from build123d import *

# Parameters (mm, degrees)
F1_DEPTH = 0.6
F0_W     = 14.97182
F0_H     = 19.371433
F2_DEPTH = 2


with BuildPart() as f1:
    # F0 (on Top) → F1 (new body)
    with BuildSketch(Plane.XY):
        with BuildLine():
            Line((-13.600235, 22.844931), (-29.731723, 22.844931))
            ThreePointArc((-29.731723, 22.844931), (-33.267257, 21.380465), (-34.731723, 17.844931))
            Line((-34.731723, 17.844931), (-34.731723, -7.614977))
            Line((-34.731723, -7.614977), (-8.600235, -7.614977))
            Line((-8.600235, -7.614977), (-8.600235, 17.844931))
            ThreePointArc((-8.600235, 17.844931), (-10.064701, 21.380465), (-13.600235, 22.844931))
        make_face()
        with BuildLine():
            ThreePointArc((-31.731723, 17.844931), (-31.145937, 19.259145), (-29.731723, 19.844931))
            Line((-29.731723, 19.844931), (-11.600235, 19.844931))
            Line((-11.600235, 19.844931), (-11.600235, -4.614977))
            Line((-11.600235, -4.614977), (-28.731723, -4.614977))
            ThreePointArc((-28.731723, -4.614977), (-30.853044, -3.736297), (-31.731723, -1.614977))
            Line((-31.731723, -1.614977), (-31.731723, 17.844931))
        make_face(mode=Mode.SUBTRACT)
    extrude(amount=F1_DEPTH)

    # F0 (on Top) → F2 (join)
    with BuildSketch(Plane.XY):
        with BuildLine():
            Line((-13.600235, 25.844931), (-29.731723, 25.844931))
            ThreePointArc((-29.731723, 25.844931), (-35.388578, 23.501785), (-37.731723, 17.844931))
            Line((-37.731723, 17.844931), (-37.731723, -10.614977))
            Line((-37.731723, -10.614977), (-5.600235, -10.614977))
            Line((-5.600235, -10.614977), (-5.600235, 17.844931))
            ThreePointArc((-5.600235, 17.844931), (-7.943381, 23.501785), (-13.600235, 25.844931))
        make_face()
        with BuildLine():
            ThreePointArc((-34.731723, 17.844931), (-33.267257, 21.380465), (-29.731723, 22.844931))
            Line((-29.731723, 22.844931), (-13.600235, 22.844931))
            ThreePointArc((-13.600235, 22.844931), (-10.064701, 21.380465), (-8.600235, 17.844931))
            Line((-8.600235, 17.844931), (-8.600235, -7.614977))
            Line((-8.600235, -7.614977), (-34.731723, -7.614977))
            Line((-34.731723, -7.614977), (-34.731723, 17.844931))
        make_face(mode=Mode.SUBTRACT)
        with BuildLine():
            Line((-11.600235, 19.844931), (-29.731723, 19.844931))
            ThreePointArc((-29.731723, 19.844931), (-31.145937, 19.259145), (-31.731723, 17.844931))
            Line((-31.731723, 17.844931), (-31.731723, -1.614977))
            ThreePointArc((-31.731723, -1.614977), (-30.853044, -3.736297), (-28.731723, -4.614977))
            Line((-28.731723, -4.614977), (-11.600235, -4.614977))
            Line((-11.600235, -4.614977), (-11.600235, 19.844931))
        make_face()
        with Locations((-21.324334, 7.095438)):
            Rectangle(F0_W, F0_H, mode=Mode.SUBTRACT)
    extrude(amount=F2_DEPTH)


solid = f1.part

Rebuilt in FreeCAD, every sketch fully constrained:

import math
import FreeCAD as App
import Part
import Sketcher

V = App.Vector
Q = App.Units.Quantity


def add_polygon(sketch, points):
    """Adds a closed chain of lines whose ends are joined by coincident constraints."""
    first, n = sketch.GeometryCount, len(points)
    for a, b in zip(points, points[1:] + points[:1]):
        sketch.addGeometry(Part.LineSegment(App.Vector(*a, 0), App.Vector(*b, 0)), False)
    for i in range(n):
        sketch.addConstraint(Sketcher.Constraint("Coincident", first + i, 2, first + (i + 1) % n, 1))

doc = App.newDocument("Part")
body = doc.addObject("PartDesign::Body", "Body")

# Sketch on XY plane
sketch1 = body.newObject("Sketcher::SketchObject", "Sketch")
sketch1.AttachmentSupport = (doc.getObject("XY_Plane"), [""])
sketch1.MapMode = "FlatFace"
sketch1.addGeometry(Part.LineSegment(V(-13.6, 22.8, 0), V(-29.7, 22.8, 0)), False)
sketch1.addGeometry(Part.ArcOfCircle(Part.Circle(V(-29.7, 17.8, 0), V(0, 0, 1), 5), math.radians(90), math.radians(180)), False)
sketch1.addGeometry(Part.LineSegment(V(-34.7, 17.8, 0), V(-34.7, -7.6, 0)), False)
sketch1.addGeometry(Part.LineSegment(V(-34.7, -7.6, 0), V(-8.6, -7.6, 0)), False)
sketch1.addGeometry(Part.LineSegment(V(-8.6, -7.6, 0), V(-8.6, 17.8, 0)), False)
sketch1.addGeometry(Part.ArcOfCircle(Part.Circle(V(-13.6, 17.8, 0), V(0, 0, 1), 5), math.radians(0), math.radians(90)), False)
sketch1.addGeometry(Part.LineSegment(V(-31.7, -1.6, 0), V(-31.7, 17.8, 0)), False)
sketch1.addGeometry(Part.ArcOfCircle(Part.Circle(V(-29.7, 17.8, 0), V(0, 0, 1), 2), math.radians(90), math.radians(180)), False)
sketch1.addGeometry(Part.LineSegment(V(-29.7, 19.8, 0), V(-11.6, 19.8, 0)), False)
sketch1.addGeometry(Part.LineSegment(V(-11.6, 19.8, 0), V(-11.6, -4.6, 0)), False)
sketch1.addGeometry(Part.LineSegment(V(-11.6, -4.6, 0), V(-28.7, -4.6, 0)), False)
sketch1.addGeometry(Part.ArcOfCircle(Part.Circle(V(-28.7, -1.6, 0), V(0, 0, 1), 3), math.radians(180), math.radians(270)), False)
sketch1.addConstraint(Sketcher.Constraint("Tangent", 0, 2, 1, 1))
sketch1.addConstraint(Sketcher.Constraint("Tangent", 1, 2, 2, 1))
sketch1.addConstraint(Sketcher.Constraint("Coincident", 2, 2, 3, 1))
sketch1.addConstraint(Sketcher.Constraint("Coincident", 3, 2, 4, 1))
sketch1.addConstraint(Sketcher.Constraint("Tangent", 4, 2, 5, 1))
sketch1.addConstraint(Sketcher.Constraint("Tangent", 5, 2, 0, 1))
sketch1.addConstraint(Sketcher.Constraint("Tangent", 6, 2, 7, 2))
sketch1.addConstraint(Sketcher.Constraint("Tangent", 7, 1, 8, 1))
sketch1.addConstraint(Sketcher.Constraint("Coincident", 8, 2, 9, 1))
sketch1.addConstraint(Sketcher.Constraint("Coincident", 9, 2, 10, 1))
sketch1.addConstraint(Sketcher.Constraint("Tangent", 10, 2, 11, 2))
sketch1.addConstraint(Sketcher.Constraint("Tangent", 11, 1, 6, 1))
sketch1.addConstraint(Sketcher.Constraint("Horizontal", 0))
sketch1.addConstraint(Sketcher.Constraint("Vertical", 2))
sketch1.addConstraint(Sketcher.Constraint("Horizontal", 3))
sketch1.addConstraint(Sketcher.Constraint("Vertical", 4))
sketch1.addConstraint(Sketcher.Constraint("Vertical", 6))
sketch1.addConstraint(Sketcher.Constraint("Horizontal", 8))
sketch1.addConstraint(Sketcher.Constraint("Vertical", 9))
sketch1.addConstraint(Sketcher.Constraint("Horizontal", 10))
sketch1.addConstraint(Sketcher.Constraint("Coincident", 7, 3, 1, 3))
sketch1.addConstraint(Sketcher.Constraint("Equal", 1, 5))
sketch1.addConstraint(Sketcher.Constraint("Radius", 1, Q("5 mm")))
sketch1.addConstraint(Sketcher.Constraint("Radius", 7, Q("1.999999 mm")))
sketch1.addConstraint(Sketcher.Constraint("Radius", 11, Q("2.999999 mm")))
sketch1.addConstraint(Sketcher.Constraint("DistanceY", 2, 2, 11, 3, Q("5.999999 mm")))
sketch1.addConstraint(Sketcher.Constraint("DistanceX", 5, 3, 8, 2, Q("2 mm")))
sketch1.addConstraint(Sketcher.Constraint("DistanceX", 3, 1, 3, 2, Q("26.131488 mm")))
sketch1.addConstraint(Sketcher.Constraint("DistanceY", 2, 2, 2, 1, Q("25.459908 mm")))
sketch1.addConstraint(Sketcher.Constraint("DistanceY", -1, 1, 1, 3, Q("17.844931 mm")))
sketch1.addConstraint(Sketcher.Constraint("DistanceX", 1, 3, -1, 1, Q("29.731723 mm")))
pad1 = body.newObject("PartDesign::Pad", "Pad")
pad1.Profile = sketch1
pad1.Length = 0.6

# Sketch on XY plane
sketch2 = body.newObject("Sketcher::SketchObject", "Sketch001")
sketch2.AttachmentSupport = (doc.getObject("XY_Plane"), [""])
sketch2.MapMode = "FlatFace"
sketch2.addGeometry(Part.LineSegment(V(-13.6, 25.8, 0), V(-29.7, 25.8, 0)), False)  # 0
sketch2.addGeometry(Part.ArcOfCircle(Part.Circle(V(-29.7, 17.8, 0), V(0, 0, 1), 8), math.radians(90), math.radians(180)), False)  # 1
sketch2.addGeometry(Part.LineSegment(V(-37.7, 17.8, 0), V(-37.7, -10.6, 0)), False)  # 2
sketch2.addGeometry(Part.LineSegment(V(-37.7, -10.6, 0), V(-5.6, -10.6, 0)), False)  # 3
sketch2.addGeometry(Part.LineSegment(V(-5.6, -10.6, 0), V(-5.6, 17.8, 0)), False)  # 4
sketch2.addGeometry(Part.ArcOfCircle(Part.Circle(V(-13.6, 17.8, 0), V(0, 0, 1), 8), math.radians(0), math.radians(90)), False)  # 5
sketch2.addGeometry(Part.LineSegment(V(-34.7, -7.6, 0), V(-34.7, 17.8, 0)), False)  # 6
sketch2.addGeometry(Part.ArcOfCircle(Part.Circle(V(-29.7, 17.8, 0), V(0, 0, 1), 5), math.radians(90), math.radians(180)), False)  # 7
sketch2.addGeometry(Part.LineSegment(V(-29.7, 22.8, 0), V(-13.6, 22.8, 0)), False)  # 8
sketch2.addGeometry(Part.ArcOfCircle(Part.Circle(V(-13.6, 17.8, 0), V(0, 0, 1), 5), math.radians(0), math.radians(90)), False)  # 9
sketch2.addGeometry(Part.LineSegment(V(-8.6, 17.8, 0), V(-8.6, -7.6, 0)), False)  # 10
sketch2.addGeometry(Part.LineSegment(V(-8.6, -7.6, 0), V(-34.7, -7.6, 0)), False)  # 11
sketch2.addGeometry(Part.LineSegment(V(-11.6, 19.8, 0), V(-29.7, 19.8, 0)), False)  # 12
sketch2.addGeometry(Part.ArcOfCircle(Part.Circle(V(-29.7, 17.8, 0), V(0, 0, 1), 2), math.radians(90), math.radians(180)), False)  # 13
sketch2.addGeometry(Part.LineSegment(V(-31.7, 17.8, 0), V(-31.7, -1.6, 0)), False)  # 14
sketch2.addGeometry(Part.ArcOfCircle(Part.Circle(V(-28.7, -1.6, 0), V(0, 0, 1), 3), math.radians(180), math.radians(270)), False)  # 15
sketch2.addGeometry(Part.LineSegment(V(-28.7, -4.6, 0), V(-11.6, -4.6, 0)), False)  # 16
sketch2.addGeometry(Part.LineSegment(V(-11.6, -4.6, 0), V(-11.6, 19.8, 0)), False)  # 17
add_polygon(sketch2, [(-13.8, -2.6), (-28.8, -2.6), (-28.8, 16.8), (-13.8, 16.8)])  # lines 18-21
sketch2.addConstraint(Sketcher.Constraint("Tangent", 0, 2, 1, 1))
sketch2.addConstraint(Sketcher.Constraint("Tangent", 1, 2, 2, 1))
sketch2.addConstraint(Sketcher.Constraint("Coincident", 2, 2, 3, 1))
sketch2.addConstraint(Sketcher.Constraint("Coincident", 3, 2, 4, 1))
sketch2.addConstraint(Sketcher.Constraint("Tangent", 4, 2, 5, 1))
sketch2.addConstraint(Sketcher.Constraint("Tangent", 5, 2, 0, 1))
sketch2.addConstraint(Sketcher.Constraint("Tangent", 6, 2, 7, 2))
sketch2.addConstraint(Sketcher.Constraint("Tangent", 7, 1, 8, 1))
sketch2.addConstraint(Sketcher.Constraint("Tangent", 8, 2, 9, 2))
sketch2.addConstraint(Sketcher.Constraint("Tangent", 9, 1, 10, 1))
sketch2.addConstraint(Sketcher.Constraint("Coincident", 10, 2, 11, 1))
sketch2.addConstraint(Sketcher.Constraint("Coincident", 11, 2, 6, 1))
sketch2.addConstraint(Sketcher.Constraint("Tangent", 12, 2, 13, 1))
sketch2.addConstraint(Sketcher.Constraint("Tangent", 13, 2, 14, 1))
sketch2.addConstraint(Sketcher.Constraint("Tangent", 14, 2, 15, 1))
sketch2.addConstraint(Sketcher.Constraint("Tangent", 15, 2, 16, 1))
sketch2.addConstraint(Sketcher.Constraint("Coincident", 16, 2, 17, 1))
sketch2.addConstraint(Sketcher.Constraint("Coincident", 17, 2, 12, 1))
sketch2.addConstraint(Sketcher.Constraint("Horizontal", 0))
sketch2.addConstraint(Sketcher.Constraint("Vertical", 2))
sketch2.addConstraint(Sketcher.Constraint("Horizontal", 3))
sketch2.addConstraint(Sketcher.Constraint("Vertical", 4))
sketch2.addConstraint(Sketcher.Constraint("Vertical", 6))
sketch2.addConstraint(Sketcher.Constraint("Horizontal", 8))
sketch2.addConstraint(Sketcher.Constraint("Vertical", 10))
sketch2.addConstraint(Sketcher.Constraint("Horizontal", 11))
sketch2.addConstraint(Sketcher.Constraint("Horizontal", 12))
sketch2.addConstraint(Sketcher.Constraint("Vertical", 14))
sketch2.addConstraint(Sketcher.Constraint("Horizontal", 16))
sketch2.addConstraint(Sketcher.Constraint("Vertical", 17))
sketch2.addConstraint(Sketcher.Constraint("Horizontal", 18))
sketch2.addConstraint(Sketcher.Constraint("Vertical", 19))
sketch2.addConstraint(Sketcher.Constraint("Horizontal", 20))
sketch2.addConstraint(Sketcher.Constraint("Vertical", 21))
sketch2.addConstraint(Sketcher.Constraint("Coincident", 7, 3, 1, 3))
sketch2.addConstraint(Sketcher.Constraint("Coincident", 9, 3, 5, 3))
sketch2.addConstraint(Sketcher.Constraint("Coincident", 13, 3, 1, 3))
sketch2.addConstraint(Sketcher.Constraint("Equal", 1, 5))
sketch2.addConstraint(Sketcher.Constraint("Radius", 1, Q("7.999999 mm")))
sketch2.addConstraint(Sketcher.Constraint("Radius", 7, Q("5 mm")))
sketch2.addConstraint(Sketcher.Constraint("Radius", 13, Q("1.999999 mm")))
sketch2.addConstraint(Sketcher.Constraint("Radius", 15, Q("2.999999 mm")))
sketch2.addConstraint(Sketcher.Constraint("DistanceY", 2, 2, 15, 3, Q("8.999999 mm")))
sketch2.addConstraint(Sketcher.Constraint("DistanceY", 3, 2, 10, 2, Q("3 mm")))
sketch2.addConstraint(Sketcher.Constraint("DistanceX", 16, 2, 10, 2, Q("3 mm")))
sketch2.addConstraint(Sketcher.Constraint("DistanceX", 3, 1, 3, 2, Q("32.131488 mm")))
sketch2.addConstraint(Sketcher.Constraint("DistanceX", 18, 2, 18, 1, Q("14.97182 mm")))
sketch2.addConstraint(Sketcher.Constraint("DistanceY", 18, 2, 15, 3, Q("0.975301 mm")))
sketch2.addConstraint(Sketcher.Constraint("DistanceX", 15, 3, 21, 2, Q("14.8933 mm")))
sketch2.addConstraint(Sketcher.Constraint("DistanceY", 2, 2, 2, 1, Q("28.459908 mm")))
sketch2.addConstraint(Sketcher.Constraint("DistanceY", 19, 1, 19, 2, Q("19.371433 mm")))
sketch2.addConstraint(Sketcher.Constraint("DistanceY", -1, 1, 1, 3, Q("17.844932 mm")))
sketch2.addConstraint(Sketcher.Constraint("DistanceX", 1, 3, -1, 1, Q("29.731724 mm")))
pad2 = body.newObject("PartDesign::Pad", "Pad001")
pad2.Profile = sketch2
pad2.Length = 2

doc.recompute()
